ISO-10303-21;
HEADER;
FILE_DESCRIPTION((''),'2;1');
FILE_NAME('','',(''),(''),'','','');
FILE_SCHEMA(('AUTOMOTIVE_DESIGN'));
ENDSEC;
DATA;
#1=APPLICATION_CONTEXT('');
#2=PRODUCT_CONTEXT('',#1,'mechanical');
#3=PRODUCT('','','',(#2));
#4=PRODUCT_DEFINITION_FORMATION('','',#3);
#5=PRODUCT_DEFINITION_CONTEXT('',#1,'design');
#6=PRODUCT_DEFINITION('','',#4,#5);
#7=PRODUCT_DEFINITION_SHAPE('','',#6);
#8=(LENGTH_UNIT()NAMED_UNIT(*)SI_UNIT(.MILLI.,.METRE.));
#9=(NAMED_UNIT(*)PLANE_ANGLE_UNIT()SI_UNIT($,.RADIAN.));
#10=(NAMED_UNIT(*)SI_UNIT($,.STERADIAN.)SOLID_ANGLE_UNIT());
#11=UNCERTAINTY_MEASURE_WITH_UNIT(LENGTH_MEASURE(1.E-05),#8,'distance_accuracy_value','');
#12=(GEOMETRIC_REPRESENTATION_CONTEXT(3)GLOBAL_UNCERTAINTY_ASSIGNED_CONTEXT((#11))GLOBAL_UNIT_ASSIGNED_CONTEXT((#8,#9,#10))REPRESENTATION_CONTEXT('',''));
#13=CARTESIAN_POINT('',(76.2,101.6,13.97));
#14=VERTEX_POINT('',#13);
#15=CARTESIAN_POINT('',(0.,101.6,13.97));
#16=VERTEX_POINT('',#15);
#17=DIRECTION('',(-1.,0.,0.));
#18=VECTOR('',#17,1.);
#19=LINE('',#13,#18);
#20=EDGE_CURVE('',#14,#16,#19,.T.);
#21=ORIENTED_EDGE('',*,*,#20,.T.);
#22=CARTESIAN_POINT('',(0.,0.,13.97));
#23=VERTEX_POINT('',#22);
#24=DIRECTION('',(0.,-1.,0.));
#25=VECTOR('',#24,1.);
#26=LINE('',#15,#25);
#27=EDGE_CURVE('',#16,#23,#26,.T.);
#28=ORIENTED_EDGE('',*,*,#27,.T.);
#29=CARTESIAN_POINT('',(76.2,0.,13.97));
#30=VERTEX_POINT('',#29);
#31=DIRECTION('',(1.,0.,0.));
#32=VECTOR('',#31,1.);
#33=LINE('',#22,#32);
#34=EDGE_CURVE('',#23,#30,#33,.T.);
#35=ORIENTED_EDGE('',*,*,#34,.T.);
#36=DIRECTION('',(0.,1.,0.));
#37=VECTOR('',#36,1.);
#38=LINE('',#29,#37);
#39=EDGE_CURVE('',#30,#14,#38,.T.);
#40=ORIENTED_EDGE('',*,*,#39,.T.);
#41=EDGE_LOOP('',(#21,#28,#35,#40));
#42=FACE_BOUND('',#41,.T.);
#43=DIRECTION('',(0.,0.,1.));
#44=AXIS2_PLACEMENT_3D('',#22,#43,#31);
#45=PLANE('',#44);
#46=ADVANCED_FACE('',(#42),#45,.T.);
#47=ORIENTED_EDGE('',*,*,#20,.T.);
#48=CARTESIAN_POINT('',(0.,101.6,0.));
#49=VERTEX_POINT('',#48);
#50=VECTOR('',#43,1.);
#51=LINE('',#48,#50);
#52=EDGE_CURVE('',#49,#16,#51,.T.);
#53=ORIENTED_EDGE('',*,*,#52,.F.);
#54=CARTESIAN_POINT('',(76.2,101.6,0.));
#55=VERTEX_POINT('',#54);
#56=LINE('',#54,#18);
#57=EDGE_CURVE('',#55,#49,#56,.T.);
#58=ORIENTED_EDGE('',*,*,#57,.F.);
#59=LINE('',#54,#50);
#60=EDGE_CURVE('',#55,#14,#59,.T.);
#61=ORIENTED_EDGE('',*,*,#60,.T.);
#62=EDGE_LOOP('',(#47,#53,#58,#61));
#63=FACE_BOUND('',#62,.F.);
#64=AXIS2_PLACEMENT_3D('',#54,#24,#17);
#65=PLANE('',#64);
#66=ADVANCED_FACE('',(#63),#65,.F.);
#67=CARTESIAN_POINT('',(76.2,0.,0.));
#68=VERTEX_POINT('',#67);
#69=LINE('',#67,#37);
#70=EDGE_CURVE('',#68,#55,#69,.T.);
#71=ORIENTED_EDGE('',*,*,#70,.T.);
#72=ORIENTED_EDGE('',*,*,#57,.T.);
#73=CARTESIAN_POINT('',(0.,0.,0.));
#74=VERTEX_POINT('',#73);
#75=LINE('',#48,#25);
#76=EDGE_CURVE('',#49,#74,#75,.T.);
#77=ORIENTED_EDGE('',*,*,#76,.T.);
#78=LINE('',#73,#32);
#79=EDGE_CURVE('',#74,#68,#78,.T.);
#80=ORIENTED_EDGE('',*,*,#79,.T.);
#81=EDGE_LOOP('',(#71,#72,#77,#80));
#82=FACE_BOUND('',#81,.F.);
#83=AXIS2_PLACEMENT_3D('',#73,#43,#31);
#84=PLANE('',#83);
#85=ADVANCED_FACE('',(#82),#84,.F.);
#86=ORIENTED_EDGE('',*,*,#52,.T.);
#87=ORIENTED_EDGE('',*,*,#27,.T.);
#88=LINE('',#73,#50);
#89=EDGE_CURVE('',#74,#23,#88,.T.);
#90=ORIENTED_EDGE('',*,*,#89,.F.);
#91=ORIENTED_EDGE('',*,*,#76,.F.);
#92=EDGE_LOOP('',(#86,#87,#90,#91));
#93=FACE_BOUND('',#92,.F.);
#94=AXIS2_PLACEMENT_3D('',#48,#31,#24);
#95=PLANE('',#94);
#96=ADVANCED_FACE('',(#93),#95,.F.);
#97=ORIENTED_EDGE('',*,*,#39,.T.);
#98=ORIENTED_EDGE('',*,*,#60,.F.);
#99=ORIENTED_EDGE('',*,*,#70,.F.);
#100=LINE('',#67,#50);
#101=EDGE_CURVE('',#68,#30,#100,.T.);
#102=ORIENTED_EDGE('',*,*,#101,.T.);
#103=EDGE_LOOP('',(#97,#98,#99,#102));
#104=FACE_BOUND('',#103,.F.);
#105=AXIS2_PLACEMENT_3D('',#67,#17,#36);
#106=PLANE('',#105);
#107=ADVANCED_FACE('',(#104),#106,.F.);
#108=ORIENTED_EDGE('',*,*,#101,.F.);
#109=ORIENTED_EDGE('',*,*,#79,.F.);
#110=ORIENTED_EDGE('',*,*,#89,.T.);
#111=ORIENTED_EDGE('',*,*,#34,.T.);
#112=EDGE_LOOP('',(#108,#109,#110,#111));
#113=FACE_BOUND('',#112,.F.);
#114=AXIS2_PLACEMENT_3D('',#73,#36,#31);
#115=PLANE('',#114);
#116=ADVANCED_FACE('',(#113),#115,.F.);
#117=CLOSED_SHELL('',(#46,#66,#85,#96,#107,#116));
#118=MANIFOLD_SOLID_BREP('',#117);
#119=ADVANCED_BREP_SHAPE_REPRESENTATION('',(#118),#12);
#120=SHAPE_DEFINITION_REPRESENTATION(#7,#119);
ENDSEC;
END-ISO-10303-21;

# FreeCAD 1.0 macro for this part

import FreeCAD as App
import Part
import Sketcher
from FreeCAD import Vector
Q = App.Units.Quantity


def add_polygon(sketch, points):
    """Adds a closed chain of lines whose ends are joined by coincident constraints."""
    first, n = sketch.GeometryCount, len(points)
    for a, b in zip(points, points[1:] + points[:1]):
        sketch.addGeometry(Part.LineSegment(App.Vector(*a, 0), App.Vector(*b, 0)), False)
    for i in range(n):
        sketch.addConstraint(Sketcher.Constraint("Coincident", first + i, 2, first + (i + 1) % n, 1))

doc = App.newDocument("Part")
body = doc.addObject("PartDesign::Body", "Body")

sketch1 = body.newObject("Sketcher::SketchObject", "Sketch")
sketch1.AttachmentSupport = (doc.getObject("XY_Plane"), [""])
sketch1.MapMode = "FlatFace"
add_polygon(sketch1, [(0, 102), (0, 0), (76, 0), (76, 102)])
sketch1.addConstraint(Sketcher.Constraint("Vertical", 0))
sketch1.addConstraint(Sketcher.Constraint("Horizontal", 1))
sketch1.addConstraint(Sketcher.Constraint("Vertical", 2))
sketch1.addConstraint(Sketcher.Constraint("Horizontal", 3))
sketch1.addConstraint(Sketcher.Constraint("Coincident", 0, 2, -1, 1))
sketch1.addConstraint(Sketcher.Constraint("DistanceX", 1, 1, 1, 2, Q("3 in")))
sketch1.addConstraint(Sketcher.Constraint("DistanceY", 0, 2, 0, 1, Q("4 in")))
pad1 = body.newObject("PartDesign::Pad", "Pad")
pad1.Profile = sketch1
pad1.Length = Q("0.55 in")

doc.recompute()
